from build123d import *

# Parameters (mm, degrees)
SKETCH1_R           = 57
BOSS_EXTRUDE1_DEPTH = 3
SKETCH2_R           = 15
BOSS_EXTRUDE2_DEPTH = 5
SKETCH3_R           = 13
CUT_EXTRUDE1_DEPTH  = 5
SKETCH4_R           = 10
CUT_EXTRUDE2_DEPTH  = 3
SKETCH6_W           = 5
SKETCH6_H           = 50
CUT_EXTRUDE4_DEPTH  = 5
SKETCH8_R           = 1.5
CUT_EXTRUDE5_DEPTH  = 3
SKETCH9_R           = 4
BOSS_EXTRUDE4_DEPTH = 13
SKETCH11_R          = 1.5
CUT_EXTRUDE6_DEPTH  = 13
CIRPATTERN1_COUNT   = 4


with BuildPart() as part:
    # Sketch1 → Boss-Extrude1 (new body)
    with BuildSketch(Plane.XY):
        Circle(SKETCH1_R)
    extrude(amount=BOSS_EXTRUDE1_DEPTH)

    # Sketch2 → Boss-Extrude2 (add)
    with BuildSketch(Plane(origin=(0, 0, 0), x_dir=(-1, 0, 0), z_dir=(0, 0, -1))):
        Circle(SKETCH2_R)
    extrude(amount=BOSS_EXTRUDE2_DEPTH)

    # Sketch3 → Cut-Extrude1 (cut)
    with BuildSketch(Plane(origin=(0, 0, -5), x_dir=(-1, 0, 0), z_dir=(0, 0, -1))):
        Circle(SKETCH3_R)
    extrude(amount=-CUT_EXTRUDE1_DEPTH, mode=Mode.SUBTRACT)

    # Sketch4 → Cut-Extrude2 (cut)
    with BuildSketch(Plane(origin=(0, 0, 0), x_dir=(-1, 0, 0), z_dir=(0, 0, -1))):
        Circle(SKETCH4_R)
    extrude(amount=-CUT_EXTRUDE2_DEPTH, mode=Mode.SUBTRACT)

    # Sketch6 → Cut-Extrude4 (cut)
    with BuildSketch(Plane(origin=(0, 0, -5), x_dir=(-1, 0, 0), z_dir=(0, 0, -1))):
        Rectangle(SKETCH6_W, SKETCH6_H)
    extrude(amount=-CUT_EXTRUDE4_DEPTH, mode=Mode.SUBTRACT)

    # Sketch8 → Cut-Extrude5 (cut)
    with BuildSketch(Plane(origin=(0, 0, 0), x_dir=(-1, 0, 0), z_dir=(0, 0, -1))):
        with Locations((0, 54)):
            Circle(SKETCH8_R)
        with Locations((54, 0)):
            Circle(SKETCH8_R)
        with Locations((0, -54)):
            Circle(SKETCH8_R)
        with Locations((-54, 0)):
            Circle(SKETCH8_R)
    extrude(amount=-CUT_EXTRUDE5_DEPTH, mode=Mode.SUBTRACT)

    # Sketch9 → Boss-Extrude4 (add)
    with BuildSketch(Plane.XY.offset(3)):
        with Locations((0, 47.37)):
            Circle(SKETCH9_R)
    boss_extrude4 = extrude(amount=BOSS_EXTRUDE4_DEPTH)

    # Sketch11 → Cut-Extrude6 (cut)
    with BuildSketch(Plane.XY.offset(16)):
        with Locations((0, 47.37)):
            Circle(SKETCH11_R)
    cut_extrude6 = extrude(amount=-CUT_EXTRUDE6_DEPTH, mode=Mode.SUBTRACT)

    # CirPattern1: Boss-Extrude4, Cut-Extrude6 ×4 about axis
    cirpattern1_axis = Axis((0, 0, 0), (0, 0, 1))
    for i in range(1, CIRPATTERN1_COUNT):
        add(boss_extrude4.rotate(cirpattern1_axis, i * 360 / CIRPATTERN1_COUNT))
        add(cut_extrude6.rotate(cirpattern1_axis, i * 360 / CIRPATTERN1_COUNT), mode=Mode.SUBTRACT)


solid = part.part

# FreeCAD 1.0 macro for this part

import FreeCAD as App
import Part
import Sketcher

V = App.Vector
Q = App.Units.Quantity

doc = App.newDocument("Part")
body = doc.addObject("PartDesign::Body", "Body")

sketch1 = body.newObject("Sketcher::SketchObject", "Sketch")
sketch1.AttachmentSupport = (doc.getObject("XY_Plane"), [""])
sketch1.MapMode = "FlatFace"
sketch1.addGeometry(Part.Circle(V(0, 0, 0), V(0, 0, 1), 57), False)
sketch1.addConstraint([
    Sketcher.Constraint("Coincident", 0, 3, -1, 1),
    Sketcher.Constraint("Diameter", 0, Q("114 mm")),
])
pad1 = body.newObject("PartDesign::Pad", "Pad")
pad1.Profile = sketch1
pad1.Length = 3

sketch2 = body.newObject("Sketcher::SketchObject", "Sketch001")
sketch2.AttachmentSupport = (doc.getObject("XY_Plane"), [""])
sketch2.MapMode = "FlatFace"
sketch2.addGeometry(Part.Circle(V(0, 0, 0), V(0, 0, 1), 15), False)
sketch2.addConstraint([
    Sketcher.Constraint("Coincident", 0, 3, -1, 1),
    Sketcher.Constraint("Diameter", 0, Q("30 mm")),
])
pad2 = body.newObject("PartDesign::Pad", "Pad001")
pad2.Profile = sketch2
pad2.Length = 5
pad2.Reversed = True

sketch3 = body.newObject("Sketcher::SketchObject", "Sketch002")
sketch3.AttachmentSupport = (doc.getObject("XY_Plane"), [""])
sketch3.MapMode = "FlatFace"
sketch3.AttachmentOffset = App.Placement(V(0, 0, -5), App.Rotation())
sketch3.addGeometry(Part.Circle(V(0, 0, 0), V(0, 0, 1), 13), False)
sketch3.addConstraint([
    Sketcher.Constraint("Coincident", 0, 3, -1, 1),
    Sketcher.Constraint("Diameter", 0, Q("26 mm")),
])
pocket1 = body.newObject("PartDesign::Pocket", "Pocket")
pocket1.Profile = sketch3
pocket1.Length = 5
pocket1.Reversed = True

sketch4 = body.newObject("Sketcher::SketchObject", "Sketch003")
sketch4.AttachmentSupport = (doc.getObject("XY_Plane"), [""])
sketch4.MapMode = "FlatFace"
sketch4.addGeometry(Part.Circle(V(0, 0, 0), V(0, 0, 1), 10), False)
sketch4.addConstraint([
    Sketcher.Constraint("Coincident", 0, 3, -1, 1),
    Sketcher.Constraint("Diameter", 0, Q("20 mm")),
])
pocket2 = body.newObject("PartDesign::Pocket", "Pocket001")
pocket2.Profile = sketch4
pocket2.Length = 3
pocket2.Reversed = True

sketch5 = body.newObject("Sketcher::SketchObject", "Sketch004")
sketch5.AttachmentSupport = (doc.getObject("XY_Plane"), [""])
sketch5.MapMode = "FlatFace"
sketch5.AttachmentOffset = App.Placement(V(0, 0, -5), App.Rotation())
sketch5.addGeometry([
    Part.LineSegment(V(2, 25, 0), V(2, -25, 0)),
    Part.LineSegment(V(2, -25, 0), V(-2, -25, 0)),
    Part.LineSegment(V(-2, -25, 0), V(-2, 25, 0)),
    Part.LineSegment(V(-2, 25, 0), V(2, 25, 0)),
], False)
sketch5.addConstraint([
    Sketcher.Constraint("Coincident", 0, 2, 1, 1),
    Sketcher.Constraint("Coincident", 1, 2, 2, 1),
    Sketcher.Constraint("Coincident", 2, 2, 3, 1),
    Sketcher.Constraint("Coincident", 3, 2, 0, 1),
    Sketcher.Constraint("Vertical", 0),
    Sketcher.Constraint("Horizontal", 1),
    Sketcher.Constraint("Vertical", 2),
    Sketcher.Constraint("Horizontal", 3),
    Sketcher.Constraint("Symmetric", 0, 2, 2, 2, -1, 1),
    Sketcher.Constraint("DistanceX", 1, 2, 1, 1, Q("5 mm")),
    Sketcher.Constraint("DistanceY", 0, 2, 0, 1, Q("50 mm")),
])
pocket3 = body.newObject("PartDesign::Pocket", "Pocket002")
pocket3.Profile = sketch5
pocket3.Length = 5
pocket3.Reversed = True

sketch6 = body.newObject("Sketcher::SketchObject", "Sketch005")
sketch6.AttachmentSupport = (doc.getObject("XY_Plane"), [""])
sketch6.MapMode = "FlatFace"
sketch6.addGeometry([
    Part.Circle(V(0, 54, 0), V(0, 0, 1), 1.5),
    Part.Circle(V(-54, 0, 0), V(0, 0, 1), 1.5),
    Part.Circle(V(0, -54, 0), V(0, 0, 1), 1.5),
    Part.Circle(V(54, 0, 0), V(0, 0, 1), 1.5),
], False)
sketch6.addConstraint([
    Sketcher.Constraint("Equal", 0, 1),
    Sketcher.Constraint("Equal", 1, 2),
    Sketcher.Constraint("Equal", 2, 3),
    Sketcher.Constraint("Symmetric", 0, 3, 2, 3, -1, 1),
    Sketcher.Constraint("Symmetric", 1, 3, 3, 3, -1, 1),
    Sketcher.Constraint("PointOnObject", 0, 3, -2),
    Sketcher.Constraint("PointOnObject", 1, 3, -1),
    Sketcher.Constraint("Diameter", 0, Q("3 mm")),
    Sketcher.Constraint("DistanceY", -1, 1, 0, 3, Q("54 mm")),
    Sketcher.Constraint("DistanceX", 1, 3, -1, 1, Q("54 mm")),
])
pocket4 = body.newObject("PartDesign::Pocket", "Pocket003")
pocket4.Profile = sketch6
pocket4.Length = 3
pocket4.Reversed = True

sketch7 = body.newObject("Sketcher::SketchObject", "Sketch006")
sketch7.AttachmentSupport = (doc.getObject("XY_Plane"), [""])
sketch7.MapMode = "FlatFace"
sketch7.AttachmentOffset = App.Placement(V(0, 0, 3), App.Rotation())
sketch7.addGeometry(Part.Circle(V(0, 47.4, 0), V(0, 0, 1), 4), False)
sketch7.addConstraint([
    Sketcher.Constraint("PointOnObject", 0, 3, -2),
    Sketcher.Constraint("Diameter", 0, Q("8 mm")),
    Sketcher.Constraint("DistanceY", -1, 1, 0, 3, Q("47.37 mm")),
])
pad3 = body.newObject("PartDesign::Pad", "Pad002")
pad3.Profile = sketch7
pad3.Length = 13

sketch8 = body.newObject("Sketcher::SketchObject", "Sketch007")
sketch8.AttachmentSupport = (doc.getObject("XY_Plane"), [""])
sketch8.MapMode = "FlatFace"
sketch8.AttachmentOffset = App.Placement(V(0, 0, 16), App.Rotation())
sketch8.addGeometry(Part.Circle(V(0, 47.4, 0), V(0, 0, 1), 1.5), False)
sketch8.addConstraint([
    Sketcher.Constraint("PointOnObject", 0, 3, -2),
    Sketcher.Constraint("Diameter", 0, Q("3 mm")),
    Sketcher.Constraint("DistanceY", -1, 1, 0, 3, Q("47.37 mm")),
])
pocket5 = body.newObject("PartDesign::Pocket", "Pocket004")
pocket5.Profile = sketch8
pocket5.Length = 13
doc.recompute()

polarpattern = body.newObject("PartDesign::PolarPattern", "PolarPattern")
polarpattern.Originals = [pad3, pocket5]
polarpattern.Axis = (doc.getObject("Z_Axis"), [""])
polarpattern.Angle = 360
polarpattern.Occurrences = 4
body.Tip = polarpattern

doc.recompute()
